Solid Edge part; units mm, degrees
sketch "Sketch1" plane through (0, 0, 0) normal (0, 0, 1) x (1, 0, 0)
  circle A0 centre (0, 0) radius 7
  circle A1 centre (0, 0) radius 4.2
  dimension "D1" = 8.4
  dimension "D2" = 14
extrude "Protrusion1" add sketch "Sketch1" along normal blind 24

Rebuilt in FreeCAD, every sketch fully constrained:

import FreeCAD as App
import Part
import Sketcher

V = App.Vector
Q = App.Units.Quantity

doc = App.newDocument("Part")
params = doc.addObject("Spreadsheet::Sheet", "Params")
for row, (alias, value) in enumerate([
    ("sketch1_diameter", "14 mm"),
    ("sketch1_diameter2", "8.4 mm"),
    ("pad1_length", "24 mm"),
], start=1):
    params.set(f"A{row}", alias)
    params.set(f"B{row}", "=" + value)
    params.setAlias(f"B{row}", alias)

body = doc.addObject("PartDesign::Body", "Body")

# Sketch on XY plane
sketch1 = doc.addObject("Sketcher::SketchObject", "Sketch")
body.addObject(sketch1)
sketch1.AttachmentSupport = (doc.XY_Plane, [""])
sketch1.MapMode = "FlatFace"
sketch1.addGeometry(Part.Circle(V(0, 0, 0), V(0, 0, 1), 7), False)
sketch1.addGeometry(Part.Circle(V(0, 0, 0), V(0, 0, 1), 4.2), False)
sketch1.addConstraint(Sketcher.Constraint("Coincident", 0, 3, -1, 1))
sketch1.addConstraint(Sketcher.Constraint("Coincident", 1, 3, -1, 1))
sketch1.addConstraint(Sketcher.Constraint("Diameter", 0, Q("14 mm")))
sketch1.addConstraint(Sketcher.Constraint("Diameter", 1, Q("8.4 mm")))
sketch1.setExpression("Constraints[2]", "Params.sketch1_diameter")
sketch1.setExpression("Constraints[3]", "Params.sketch1_diameter2")
pad1 = doc.addObject("PartDesign::Pad", "Pad")
body.addObject(pad1)
pad1.Profile = sketch1
pad1.setExpression("Length", "Params.pad1_length")

doc.recompute()
